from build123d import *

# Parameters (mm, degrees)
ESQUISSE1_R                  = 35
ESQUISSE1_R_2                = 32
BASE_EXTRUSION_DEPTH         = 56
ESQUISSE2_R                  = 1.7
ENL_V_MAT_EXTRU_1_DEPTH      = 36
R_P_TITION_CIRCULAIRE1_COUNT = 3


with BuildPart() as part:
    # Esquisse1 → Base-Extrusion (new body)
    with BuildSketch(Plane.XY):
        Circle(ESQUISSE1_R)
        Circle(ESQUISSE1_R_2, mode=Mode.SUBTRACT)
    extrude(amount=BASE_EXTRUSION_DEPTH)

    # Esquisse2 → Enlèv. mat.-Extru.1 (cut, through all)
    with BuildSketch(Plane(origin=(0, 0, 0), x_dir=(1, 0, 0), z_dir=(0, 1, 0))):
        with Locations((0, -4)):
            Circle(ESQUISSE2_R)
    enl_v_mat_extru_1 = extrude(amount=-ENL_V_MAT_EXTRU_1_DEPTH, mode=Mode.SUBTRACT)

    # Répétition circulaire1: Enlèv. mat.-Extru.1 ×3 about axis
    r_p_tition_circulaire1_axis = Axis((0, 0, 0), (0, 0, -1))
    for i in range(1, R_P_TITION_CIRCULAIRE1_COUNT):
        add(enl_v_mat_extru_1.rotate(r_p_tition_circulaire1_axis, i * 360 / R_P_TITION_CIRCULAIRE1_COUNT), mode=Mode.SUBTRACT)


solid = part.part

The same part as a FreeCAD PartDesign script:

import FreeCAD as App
import Part
import Sketcher
from FreeCAD import Vector

doc = App.newDocument("Part")
body = doc.addObject("PartDesign::Body", "Body")

sketch1 = body.newObject("Sketcher::SketchObject", "Sketch")
sketch1.AttachmentSupport = (doc.getObject("XY_Plane"), [""])
sketch1.MapMode = "FlatFace"
sketch1.addGeometry([
    Part.Circle(Vector(0, 0, 0), Vector(0, 0, 1), 35),
    Part.Circle(Vector(0, 0, 0), Vector(0, 0, 1), 32),
], False)
sketch1.addConstraint([
    Sketcher.Constraint("Coincident", 0, 3, -1, 1),
    Sketcher.Constraint("Coincident", 1, 3, -1, 1),
    Sketcher.Constraint("Diameter", 0, 70.0),
    Sketcher.Constraint("Diameter", 1, 64.0),
])
pad1 = body.newObject("PartDesign::Pad", "Pad")
pad1.Profile = sketch1
pad1.Length = 56

sketch2 = body.newObject("Sketcher::SketchObject", "Sketch001")
sketch2.AttachmentSupport = (doc.getObject("XZ_Plane"), [""])
sketch2.MapMode = "FlatFace"
sketch2.addGeometry(Part.Circle(Vector(0, 4, 0), Vector(0, 0, 1), 1.7), False)
sketch2.addConstraint([
    Sketcher.Constraint("PointOnObject", 0, 3, -2),
    Sketcher.Constraint("Diameter", 0, 3.4),
    Sketcher.Constraint("DistanceY", -1, 1, 0, 3, 4.0),
])
pocket1 = body.newObject("PartDesign::Pocket", "Pocket")
pocket1.Profile = sketch2
pocket1.Type = "ThroughAll"
pocket1.Reversed = True
doc.recompute()

polarpattern = body.newObject("PartDesign::PolarPattern", "PolarPattern")
polarpattern.Originals = [pocket1]
polarpattern.Axis = (doc.getObject("Z_Axis"), [""])
polarpattern.Angle = 360
polarpattern.Occurrences = 3
body.Tip = polarpattern

doc.recompute()
